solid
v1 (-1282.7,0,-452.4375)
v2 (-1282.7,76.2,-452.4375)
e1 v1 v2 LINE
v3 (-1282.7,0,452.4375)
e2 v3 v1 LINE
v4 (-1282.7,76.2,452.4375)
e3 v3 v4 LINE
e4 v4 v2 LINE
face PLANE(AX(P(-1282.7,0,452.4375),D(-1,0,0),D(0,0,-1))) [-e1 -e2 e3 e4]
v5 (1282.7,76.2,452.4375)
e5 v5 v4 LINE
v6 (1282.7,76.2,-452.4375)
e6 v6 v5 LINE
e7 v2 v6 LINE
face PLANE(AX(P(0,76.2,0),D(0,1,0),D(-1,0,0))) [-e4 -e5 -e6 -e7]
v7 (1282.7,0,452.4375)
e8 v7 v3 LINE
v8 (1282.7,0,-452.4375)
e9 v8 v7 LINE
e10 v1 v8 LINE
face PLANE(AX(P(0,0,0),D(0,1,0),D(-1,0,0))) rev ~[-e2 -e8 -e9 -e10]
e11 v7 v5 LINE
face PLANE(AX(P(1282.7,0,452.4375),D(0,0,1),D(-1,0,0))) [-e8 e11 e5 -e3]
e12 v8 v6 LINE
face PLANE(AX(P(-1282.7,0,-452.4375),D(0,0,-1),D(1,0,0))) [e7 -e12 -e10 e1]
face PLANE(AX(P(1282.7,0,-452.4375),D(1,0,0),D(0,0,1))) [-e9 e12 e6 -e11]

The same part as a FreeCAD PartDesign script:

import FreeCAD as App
import Part
import Sketcher
Q = App.Units.Quantity


def add_polygon(sketch, points):
    """Adds a closed chain of lines whose ends are joined by coincident constraints."""
    first, n = sketch.GeometryCount, len(points)
    for a, b in zip(points, points[1:] + points[:1]):
        sketch.addGeometry(Part.LineSegment(App.Vector(*a, 0), App.Vector(*b, 0)), False)
    for i in range(n):
        sketch.addConstraint(Sketcher.Constraint("Coincident", first + i, 2, first + (i + 1) % n, 1))

doc = App.newDocument("Part")
body = doc.addObject("PartDesign::Body", "Body")

# Sketch on XZ plane
sketch1 = body.newObject("Sketcher::SketchObject", "Sketch")
sketch1.AttachmentSupport = (doc.getObject("XZ_Plane"), [""])
sketch1.MapMode = "FlatFace"
add_polygon(sketch1, [(1283, -452), (-1283, -452), (-1283, 452), (1283, 452)])  # lines 0-3
sketch1.addConstraint([
    Sketcher.Constraint("Horizontal", 0),
    Sketcher.Constraint("Vertical", 1),
    Sketcher.Constraint("Horizontal", 2),
    Sketcher.Constraint("Vertical", 3),
    Sketcher.Constraint("Symmetric", 0, 2, 2, 2, -1, 1),
    Sketcher.Constraint("DistanceX", 0, 2, 0, 1, Q("101 in")),
    Sketcher.Constraint("DistanceY", 1, 1, 1, 2, Q("35.625 in")),
])
pad1 = body.newObject("PartDesign::Pad", "Pad")
pad1.Profile = sketch1
pad1.Length = Q("3 in")
pad1.Reversed = True

doc.recompute()
